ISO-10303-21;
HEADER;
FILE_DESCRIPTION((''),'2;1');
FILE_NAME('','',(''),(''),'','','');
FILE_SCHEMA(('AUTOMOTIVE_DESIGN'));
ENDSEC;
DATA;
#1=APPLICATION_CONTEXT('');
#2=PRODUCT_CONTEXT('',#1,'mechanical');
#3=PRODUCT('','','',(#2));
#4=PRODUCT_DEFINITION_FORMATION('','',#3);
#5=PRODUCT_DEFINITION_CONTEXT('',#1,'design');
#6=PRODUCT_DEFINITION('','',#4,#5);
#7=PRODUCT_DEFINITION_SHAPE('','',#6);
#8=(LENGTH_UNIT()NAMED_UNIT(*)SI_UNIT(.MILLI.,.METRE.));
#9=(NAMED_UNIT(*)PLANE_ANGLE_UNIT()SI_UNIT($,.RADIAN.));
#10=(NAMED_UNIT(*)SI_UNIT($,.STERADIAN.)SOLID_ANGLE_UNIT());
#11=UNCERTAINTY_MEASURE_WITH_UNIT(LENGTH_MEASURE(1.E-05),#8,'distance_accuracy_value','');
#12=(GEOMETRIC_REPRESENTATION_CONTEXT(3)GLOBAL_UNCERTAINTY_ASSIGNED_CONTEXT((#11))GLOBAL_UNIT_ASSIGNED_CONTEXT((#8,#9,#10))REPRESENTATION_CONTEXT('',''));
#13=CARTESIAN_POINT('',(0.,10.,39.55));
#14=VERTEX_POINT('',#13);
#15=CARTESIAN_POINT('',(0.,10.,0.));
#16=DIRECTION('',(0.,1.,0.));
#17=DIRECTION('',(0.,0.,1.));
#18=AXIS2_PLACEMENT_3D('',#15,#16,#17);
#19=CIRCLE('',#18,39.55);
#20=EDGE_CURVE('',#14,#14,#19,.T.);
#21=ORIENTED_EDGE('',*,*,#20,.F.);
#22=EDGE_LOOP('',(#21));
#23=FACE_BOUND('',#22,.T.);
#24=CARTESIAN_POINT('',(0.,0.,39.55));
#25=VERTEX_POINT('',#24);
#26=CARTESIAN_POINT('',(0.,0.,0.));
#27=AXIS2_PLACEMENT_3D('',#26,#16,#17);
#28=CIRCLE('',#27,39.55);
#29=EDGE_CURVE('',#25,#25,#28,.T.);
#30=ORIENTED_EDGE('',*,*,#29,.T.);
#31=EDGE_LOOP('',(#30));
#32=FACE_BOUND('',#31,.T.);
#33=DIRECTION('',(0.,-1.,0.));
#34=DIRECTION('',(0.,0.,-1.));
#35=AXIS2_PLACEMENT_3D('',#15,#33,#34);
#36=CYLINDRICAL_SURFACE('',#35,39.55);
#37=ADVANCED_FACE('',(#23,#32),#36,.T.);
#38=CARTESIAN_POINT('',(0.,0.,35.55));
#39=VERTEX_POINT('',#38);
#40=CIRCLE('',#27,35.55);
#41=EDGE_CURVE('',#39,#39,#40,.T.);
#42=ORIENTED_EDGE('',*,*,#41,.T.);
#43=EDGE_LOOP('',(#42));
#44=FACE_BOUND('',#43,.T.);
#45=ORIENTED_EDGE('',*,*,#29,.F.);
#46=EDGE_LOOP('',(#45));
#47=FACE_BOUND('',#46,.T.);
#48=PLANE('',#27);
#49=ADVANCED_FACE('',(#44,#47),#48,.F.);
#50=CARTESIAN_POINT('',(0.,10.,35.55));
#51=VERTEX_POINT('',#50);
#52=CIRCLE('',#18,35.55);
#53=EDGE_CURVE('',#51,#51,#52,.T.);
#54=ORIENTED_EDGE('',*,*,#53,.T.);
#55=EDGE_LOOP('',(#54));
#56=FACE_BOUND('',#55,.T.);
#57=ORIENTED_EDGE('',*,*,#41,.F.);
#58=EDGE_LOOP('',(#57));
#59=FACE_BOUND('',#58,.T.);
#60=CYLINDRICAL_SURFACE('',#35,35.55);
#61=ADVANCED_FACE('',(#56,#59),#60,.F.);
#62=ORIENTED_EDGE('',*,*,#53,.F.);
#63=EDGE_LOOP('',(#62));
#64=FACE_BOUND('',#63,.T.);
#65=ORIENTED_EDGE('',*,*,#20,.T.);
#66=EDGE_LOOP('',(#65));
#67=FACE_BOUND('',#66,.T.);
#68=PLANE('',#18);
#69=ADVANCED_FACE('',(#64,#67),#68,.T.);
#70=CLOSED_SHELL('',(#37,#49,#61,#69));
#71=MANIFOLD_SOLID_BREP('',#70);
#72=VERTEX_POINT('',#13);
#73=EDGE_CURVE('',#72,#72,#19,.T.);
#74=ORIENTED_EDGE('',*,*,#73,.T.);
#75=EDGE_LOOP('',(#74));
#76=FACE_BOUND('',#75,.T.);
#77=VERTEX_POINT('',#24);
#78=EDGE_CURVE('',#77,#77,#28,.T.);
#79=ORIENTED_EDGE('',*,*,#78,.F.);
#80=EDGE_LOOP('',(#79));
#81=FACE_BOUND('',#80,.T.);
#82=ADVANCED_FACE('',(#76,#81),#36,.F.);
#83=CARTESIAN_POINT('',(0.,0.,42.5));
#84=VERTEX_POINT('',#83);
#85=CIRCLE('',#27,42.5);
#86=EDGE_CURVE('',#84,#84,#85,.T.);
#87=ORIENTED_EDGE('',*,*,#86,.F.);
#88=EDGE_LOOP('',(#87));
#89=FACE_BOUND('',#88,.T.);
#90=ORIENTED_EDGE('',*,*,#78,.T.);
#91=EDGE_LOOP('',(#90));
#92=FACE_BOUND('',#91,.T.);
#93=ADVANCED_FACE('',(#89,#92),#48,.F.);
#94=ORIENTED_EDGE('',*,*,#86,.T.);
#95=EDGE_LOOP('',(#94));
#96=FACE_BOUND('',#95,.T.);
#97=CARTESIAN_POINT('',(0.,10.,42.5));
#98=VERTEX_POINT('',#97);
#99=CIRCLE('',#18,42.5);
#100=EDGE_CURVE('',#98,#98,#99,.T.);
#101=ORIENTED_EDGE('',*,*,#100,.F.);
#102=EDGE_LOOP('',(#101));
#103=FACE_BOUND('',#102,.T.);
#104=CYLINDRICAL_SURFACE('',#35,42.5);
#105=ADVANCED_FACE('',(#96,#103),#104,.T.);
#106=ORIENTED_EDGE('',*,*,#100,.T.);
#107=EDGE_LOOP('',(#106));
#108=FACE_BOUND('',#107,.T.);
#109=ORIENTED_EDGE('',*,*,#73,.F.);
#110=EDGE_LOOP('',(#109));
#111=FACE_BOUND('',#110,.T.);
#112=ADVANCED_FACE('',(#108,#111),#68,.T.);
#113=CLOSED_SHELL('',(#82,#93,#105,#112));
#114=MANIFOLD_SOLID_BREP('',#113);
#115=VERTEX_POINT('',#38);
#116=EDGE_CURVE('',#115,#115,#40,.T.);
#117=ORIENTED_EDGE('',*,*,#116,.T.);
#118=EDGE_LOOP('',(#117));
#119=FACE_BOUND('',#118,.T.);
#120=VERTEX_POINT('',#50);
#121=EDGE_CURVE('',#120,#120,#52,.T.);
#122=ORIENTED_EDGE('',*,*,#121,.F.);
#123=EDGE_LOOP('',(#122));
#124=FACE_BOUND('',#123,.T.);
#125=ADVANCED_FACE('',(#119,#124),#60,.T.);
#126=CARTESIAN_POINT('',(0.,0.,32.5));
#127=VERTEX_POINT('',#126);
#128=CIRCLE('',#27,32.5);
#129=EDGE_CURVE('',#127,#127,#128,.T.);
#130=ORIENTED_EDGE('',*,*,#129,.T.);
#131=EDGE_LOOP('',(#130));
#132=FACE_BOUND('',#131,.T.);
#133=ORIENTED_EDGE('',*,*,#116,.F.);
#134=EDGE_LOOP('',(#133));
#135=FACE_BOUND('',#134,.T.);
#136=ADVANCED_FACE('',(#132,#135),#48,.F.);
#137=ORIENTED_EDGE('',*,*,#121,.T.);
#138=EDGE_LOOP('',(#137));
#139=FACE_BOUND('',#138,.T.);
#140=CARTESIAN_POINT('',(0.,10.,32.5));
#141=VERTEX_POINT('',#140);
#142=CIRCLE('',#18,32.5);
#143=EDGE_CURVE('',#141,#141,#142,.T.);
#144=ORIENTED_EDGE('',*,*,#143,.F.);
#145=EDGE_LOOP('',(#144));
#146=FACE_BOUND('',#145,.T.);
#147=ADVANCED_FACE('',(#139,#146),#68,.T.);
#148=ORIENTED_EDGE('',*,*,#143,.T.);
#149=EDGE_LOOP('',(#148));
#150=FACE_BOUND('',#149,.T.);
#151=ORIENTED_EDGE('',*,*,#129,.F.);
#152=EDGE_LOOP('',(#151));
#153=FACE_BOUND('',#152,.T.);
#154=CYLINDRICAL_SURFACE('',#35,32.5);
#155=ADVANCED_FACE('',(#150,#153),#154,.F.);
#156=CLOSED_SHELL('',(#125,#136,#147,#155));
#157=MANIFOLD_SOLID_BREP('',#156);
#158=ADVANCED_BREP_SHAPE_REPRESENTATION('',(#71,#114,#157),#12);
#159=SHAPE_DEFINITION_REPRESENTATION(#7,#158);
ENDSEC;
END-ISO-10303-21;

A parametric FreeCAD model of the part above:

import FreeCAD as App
import Part
import Sketcher

doc = App.newDocument("Part")
body = doc.addObject("PartDesign::Body", "Body")

# Sketch on XZ plane
sketch1 = body.newObject("Sketcher::SketchObject", "Sketch")
sketch1.AttachmentSupport = (doc.getObject("XZ_Plane"), [""])
sketch1.MapMode = "FlatFace"
sketch1.addGeometry(Part.Circle(App.Vector(0, 0, 0), App.Vector(0, 0, 1), 36), False)
sketch1.addGeometry(Part.Circle(App.Vector(0, 0, 0), App.Vector(0, 0, 1), 32), False)
sketch1.addConstraint(Sketcher.Constraint("Coincident", 0, 3, -1, 1))
sketch1.addConstraint(Sketcher.Constraint("Coincident", 1, 3, -1, 1))
sketch1.addConstraint(Sketcher.Constraint("Diameter", 1, 65.0))
sketch1.addConstraint(Sketcher.Constraint("Diameter", 0, 71.1))
pad1 = body.newObject("PartDesign::Pad", "Pad")
pad1.Profile = sketch1
pad1.Length = 10
pad1.Reversed = True
body2 = doc.addObject("PartDesign::Body", "Body001")

# Sketch on XZ plane
sketch2 = body2.newObject("Sketcher::SketchObject", "Sketch001")
sketch2.AttachmentSupport = (doc.getObject("XZ_Plane001"), [""])
sketch2.MapMode = "FlatFace"
sketch2.addGeometry(Part.Circle(App.Vector(0, 0, 0), App.Vector(0, 0, 1), 40), False)
sketch2.addGeometry(Part.Circle(App.Vector(0, 0, 0), App.Vector(0, 0, 1), 36), False)
sketch2.addConstraint(Sketcher.Constraint("Coincident", 0, 3, -1, 1))
sketch2.addConstraint(Sketcher.Constraint("Coincident", 1, 3, -1, 1))
sketch2.addConstraint(Sketcher.Constraint("Diameter", 0, 79.1))
sketch2.addConstraint(Sketcher.Constraint("Diameter", 1, 71.1))
pad2 = body2.newObject("PartDesign::Pad", "Pad001")
pad2.Profile = sketch2
pad2.Length = 10
pad2.Reversed = True
body3 = doc.addObject("PartDesign::Body", "Body002")

# Sketch on XZ plane
sketch3 = body3.newObject("Sketcher::SketchObject", "Sketch002")
sketch3.AttachmentSupport = (doc.getObject("XZ_Plane002"), [""])
sketch3.MapMode = "FlatFace"
sketch3.addGeometry(Part.Circle(App.Vector(0, 0, 0), App.Vector(0, 0, 1), 42), False)
sketch3.addGeometry(Part.Circle(App.Vector(0, 0, 0), App.Vector(0, 0, 1), 40), False)
sketch3.addConstraint(Sketcher.Constraint("Coincident", 0, 3, -1, 1))
sketch3.addConstraint(Sketcher.Constraint("Coincident", 1, 3, -1, 1))
sketch3.addConstraint(Sketcher.Constraint("Diameter", 0, 85.0))
sketch3.addConstraint(Sketcher.Constraint("Diameter", 1, 79.1))
pad3 = body3.newObject("PartDesign::Pad", "Pad002")
pad3.Profile = sketch3
pad3.Length = 10
pad3.Reversed = True

doc.recompute()
